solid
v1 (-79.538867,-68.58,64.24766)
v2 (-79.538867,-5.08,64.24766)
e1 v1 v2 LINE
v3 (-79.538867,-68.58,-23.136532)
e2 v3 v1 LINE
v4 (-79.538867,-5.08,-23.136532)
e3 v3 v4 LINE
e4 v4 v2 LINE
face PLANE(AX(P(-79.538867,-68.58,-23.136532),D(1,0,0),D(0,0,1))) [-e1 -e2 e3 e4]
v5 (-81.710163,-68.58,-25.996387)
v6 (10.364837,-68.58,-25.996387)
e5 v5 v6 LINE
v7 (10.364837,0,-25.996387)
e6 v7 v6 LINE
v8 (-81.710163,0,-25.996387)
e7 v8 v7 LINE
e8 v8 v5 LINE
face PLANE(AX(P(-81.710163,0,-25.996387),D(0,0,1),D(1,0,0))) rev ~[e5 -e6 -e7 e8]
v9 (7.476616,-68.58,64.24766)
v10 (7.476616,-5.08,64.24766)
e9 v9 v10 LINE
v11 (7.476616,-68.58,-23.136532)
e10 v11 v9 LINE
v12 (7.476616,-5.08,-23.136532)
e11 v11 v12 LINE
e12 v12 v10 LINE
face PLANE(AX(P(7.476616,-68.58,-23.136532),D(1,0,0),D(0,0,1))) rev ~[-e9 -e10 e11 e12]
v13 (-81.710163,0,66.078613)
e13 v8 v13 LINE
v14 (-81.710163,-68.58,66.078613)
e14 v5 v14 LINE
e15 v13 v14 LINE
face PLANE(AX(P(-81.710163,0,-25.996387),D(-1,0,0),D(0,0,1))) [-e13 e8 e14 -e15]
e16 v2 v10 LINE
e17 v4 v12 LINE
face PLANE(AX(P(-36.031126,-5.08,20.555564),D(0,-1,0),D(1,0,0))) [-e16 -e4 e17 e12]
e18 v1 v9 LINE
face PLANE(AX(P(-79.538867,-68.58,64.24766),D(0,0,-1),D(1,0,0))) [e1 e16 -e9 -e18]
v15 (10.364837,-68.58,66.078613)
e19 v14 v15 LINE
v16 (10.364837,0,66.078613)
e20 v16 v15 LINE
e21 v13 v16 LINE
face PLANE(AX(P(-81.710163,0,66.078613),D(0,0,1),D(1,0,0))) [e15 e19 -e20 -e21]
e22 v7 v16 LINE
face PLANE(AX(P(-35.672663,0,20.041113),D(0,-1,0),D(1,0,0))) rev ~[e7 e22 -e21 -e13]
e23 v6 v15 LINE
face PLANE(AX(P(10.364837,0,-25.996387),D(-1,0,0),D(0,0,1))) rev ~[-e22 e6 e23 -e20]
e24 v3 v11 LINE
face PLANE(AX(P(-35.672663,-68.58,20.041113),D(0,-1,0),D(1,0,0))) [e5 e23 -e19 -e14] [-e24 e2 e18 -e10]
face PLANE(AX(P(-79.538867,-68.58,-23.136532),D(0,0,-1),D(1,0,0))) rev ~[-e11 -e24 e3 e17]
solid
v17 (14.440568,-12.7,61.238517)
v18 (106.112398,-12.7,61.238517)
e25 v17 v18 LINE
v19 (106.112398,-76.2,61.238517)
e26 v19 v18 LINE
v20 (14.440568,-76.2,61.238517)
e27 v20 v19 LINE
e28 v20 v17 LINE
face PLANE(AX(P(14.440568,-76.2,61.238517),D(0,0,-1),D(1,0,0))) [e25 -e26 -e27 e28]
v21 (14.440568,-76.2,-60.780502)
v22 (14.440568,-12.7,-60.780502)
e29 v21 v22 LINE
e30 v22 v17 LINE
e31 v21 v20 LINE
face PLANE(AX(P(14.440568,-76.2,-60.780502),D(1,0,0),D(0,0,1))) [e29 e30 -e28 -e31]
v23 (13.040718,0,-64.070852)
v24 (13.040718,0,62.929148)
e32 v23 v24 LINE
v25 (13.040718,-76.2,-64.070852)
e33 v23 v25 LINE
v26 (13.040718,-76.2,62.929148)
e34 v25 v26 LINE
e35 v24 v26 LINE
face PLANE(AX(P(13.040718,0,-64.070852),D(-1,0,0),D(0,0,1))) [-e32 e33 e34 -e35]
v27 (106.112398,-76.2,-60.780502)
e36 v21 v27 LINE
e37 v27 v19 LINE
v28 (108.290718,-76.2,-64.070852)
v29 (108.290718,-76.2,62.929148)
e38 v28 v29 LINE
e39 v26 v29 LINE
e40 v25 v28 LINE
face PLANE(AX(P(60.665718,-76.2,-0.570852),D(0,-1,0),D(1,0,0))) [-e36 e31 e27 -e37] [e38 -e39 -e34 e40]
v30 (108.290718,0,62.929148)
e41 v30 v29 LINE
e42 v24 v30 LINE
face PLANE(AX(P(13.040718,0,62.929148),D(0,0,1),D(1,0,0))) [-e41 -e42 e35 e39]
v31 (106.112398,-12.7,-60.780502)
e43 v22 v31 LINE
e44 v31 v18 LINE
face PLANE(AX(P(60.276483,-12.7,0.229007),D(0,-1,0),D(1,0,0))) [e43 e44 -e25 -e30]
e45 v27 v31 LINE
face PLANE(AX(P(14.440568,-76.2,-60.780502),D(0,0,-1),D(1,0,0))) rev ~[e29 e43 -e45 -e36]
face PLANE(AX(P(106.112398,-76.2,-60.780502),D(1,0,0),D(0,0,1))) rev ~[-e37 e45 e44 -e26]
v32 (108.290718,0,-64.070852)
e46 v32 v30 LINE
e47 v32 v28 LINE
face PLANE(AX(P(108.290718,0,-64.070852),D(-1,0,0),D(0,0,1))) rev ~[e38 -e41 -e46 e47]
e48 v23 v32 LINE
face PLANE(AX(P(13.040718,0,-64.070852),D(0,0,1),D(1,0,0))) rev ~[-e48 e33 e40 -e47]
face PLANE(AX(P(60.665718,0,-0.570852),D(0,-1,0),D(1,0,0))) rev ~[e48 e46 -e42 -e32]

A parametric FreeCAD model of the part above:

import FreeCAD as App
import Part
import Sketcher
from FreeCAD import Vector
Q = App.Units.Quantity

doc = App.newDocument("Part")
body = doc.addObject("PartDesign::Body", "Body")

# Sketch on XZ plane
sketch1 = body.newObject("Sketcher::SketchObject", "Sketch")
sketch1.AttachmentSupport = (doc.getObject("XZ_Plane"), [""])
sketch1.MapMode = "FlatFace"
sketch1.addGeometry(Part.LineSegment(Vector(-82, 66, 0), Vector(-82, -26, 0)), False)
sketch1.addGeometry(Part.LineSegment(Vector(-82, -26, 0), Vector(10, -26, 0)), False)
sketch1.addGeometry(Part.LineSegment(Vector(10, -26, 0), Vector(10, 66, 0)), False)
sketch1.addGeometry(Part.LineSegment(Vector(10, 66, 0), Vector(-82, 66, 0)), False)
sketch1.addConstraint(Sketcher.Constraint("Coincident", 0, 2, 1, 1))
sketch1.addConstraint(Sketcher.Constraint("Coincident", 1, 2, 2, 1))
sketch1.addConstraint(Sketcher.Constraint("Coincident", 2, 2, 3, 1))
sketch1.addConstraint(Sketcher.Constraint("Coincident", 3, 2, 0, 1))
sketch1.addConstraint(Sketcher.Constraint("Vertical", 0))
sketch1.addConstraint(Sketcher.Constraint("Horizontal", 1))
sketch1.addConstraint(Sketcher.Constraint("Vertical", 2))
sketch1.addConstraint(Sketcher.Constraint("Horizontal", 3))
sketch1.addConstraint(Sketcher.Constraint("Equal", 3, 0))
sketch1.addConstraint(Sketcher.Constraint("DistanceX", 1, 1, 1, 2, Q("3.625 in")))
sketch1.addConstraint(Sketcher.Constraint("DistanceX", 0, 2, -1, 1, 81.710163))
sketch1.addConstraint(Sketcher.Constraint("DistanceY", 0, 2, -1, 1, 25.996387))
pad1 = body.newObject("PartDesign::Pad", "Pad")
pad1.Profile = sketch1
pad1.Length = Q("2.7 in")

# Sketch on XZ plane
sketch2 = body.newObject("Sketcher::SketchObject", "Sketch001")
sketch2.AttachmentSupport = (doc.getObject("XZ_Plane"), [""])
sketch2.MapMode = "FlatFace"
sketch2.AttachmentOffset = App.Placement(Vector(0, 0, 2.7 * 25.4), App.Rotation())
sketch2.addGeometry(Part.LineSegment(Vector(-80, 64, 0), Vector(-80, -23, 0)), False)
sketch2.addGeometry(Part.LineSegment(Vector(-80, -23, 0), Vector(7, -23, 0)), False)
sketch2.addGeometry(Part.LineSegment(Vector(7, -23, 0), Vector(7, 64, 0)), False)
sketch2.addGeometry(Part.LineSegment(Vector(7, 64, 0), Vector(-80, 64, 0)), False)
sketch2.addConstraint(Sketcher.Constraint("Coincident", 0, 2, 1, 1))
sketch2.addConstraint(Sketcher.Constraint("Coincident", 1, 2, 2, 1))
sketch2.addConstraint(Sketcher.Constraint("Coincident", 2, 2, 3, 1))
sketch2.addConstraint(Sketcher.Constraint("Coincident", 3, 2, 0, 1))
sketch2.addConstraint(Sketcher.Constraint("Vertical", 0))
sketch2.addConstraint(Sketcher.Constraint("Horizontal", 1))
sketch2.addConstraint(Sketcher.Constraint("Vertical", 2))
sketch2.addConstraint(Sketcher.Constraint("Horizontal", 3))
sketch2.addConstraint(Sketcher.Constraint("DistanceY", 0, 2, 0, 1, 87.384192))
sketch2.addConstraint(Sketcher.Constraint("DistanceX", 1, 1, 1, 2, 87.015483))
sketch2.addConstraint(Sketcher.Constraint("DistanceY", 0, 2, -1, 1, 23.136532))
sketch2.addConstraint(Sketcher.Constraint("DistanceX", 0, 2, -1, 1, 79.538867))
pocket1 = body.newObject("PartDesign::Pocket", "Pocket")
pocket1.Profile = sketch2
pocket1.Length = Q("2.5 in")
body2 = doc.addObject("PartDesign::Body", "Body001")

# Sketch on XZ plane
sketch3 = body2.newObject("Sketcher::SketchObject", "Sketch002")
sketch3.AttachmentSupport = (doc.getObject("XZ_Plane001"), [""])
sketch3.MapMode = "FlatFace"
sketch3.addGeometry(Part.LineSegment(Vector(13, 63, 0), Vector(13, -64, 0)), False)
sketch3.addGeometry(Part.LineSegment(Vector(13, -64, 0), Vector(108, -64, 0)), False)
sketch3.addGeometry(Part.LineSegment(Vector(108, -64, 0), Vector(108, 63, 0)), False)
sketch3.addGeometry(Part.LineSegment(Vector(108, 63, 0), Vector(13, 63, 0)), False)
sketch3.addConstraint(Sketcher.Constraint("Coincident", 0, 2, 1, 1))
sketch3.addConstraint(Sketcher.Constraint("Coincident", 1, 2, 2, 1))
sketch3.addConstraint(Sketcher.Constraint("Coincident", 2, 2, 3, 1))
sketch3.addConstraint(Sketcher.Constraint("Coincident", 3, 2, 0, 1))
sketch3.addConstraint(Sketcher.Constraint("Vertical", 0))
sketch3.addConstraint(Sketcher.Constraint("Horizontal", 1))
sketch3.addConstraint(Sketcher.Constraint("Vertical", 2))
sketch3.addConstraint(Sketcher.Constraint("Horizontal", 3))
sketch3.addConstraint(Sketcher.Constraint("DistanceY", 0, 2, 0, 1, Q("5 in")))
sketch3.addConstraint(Sketcher.Constraint("DistanceX", 1, 1, 1, 2, Q("3.75 in")))
sketch3.addConstraint(Sketcher.Constraint("DistanceX", -1, 1, 1, 2, 108.290718))
sketch3.addConstraint(Sketcher.Constraint("DistanceY", 0, 2, -1, 1, 64.070852))
pad2 = body2.newObject("PartDesign::Pad", "Pad001")
pad2.Profile = sketch3
pad2.Length = Q("3 in")

# Sketch on XZ plane
sketch4 = body2.newObject("Sketcher::SketchObject", "Sketch003")
sketch4.AttachmentSupport = (doc.getObject("XZ_Plane001"), [""])
sketch4.MapMode = "FlatFace"
sketch4.AttachmentOffset = App.Placement(Vector(0, 0, 3 * 25.4), App.Rotation())
sketch4.addGeometry(Part.LineSegment(Vector(14, 61, 0), Vector(14, -61, 0)), False)
sketch4.addGeometry(Part.LineSegment(Vector(14, -61, 0), Vector(106, -61, 0)), False)
sketch4.addGeometry(Part.LineSegment(Vector(106, -61, 0), Vector(106, 61, 0)), False)
sketch4.addGeometry(Part.LineSegment(Vector(106, 61, 0), Vector(14, 61, 0)), False)
sketch4.addConstraint(Sketcher.Constraint("Coincident", 0, 2, 1, 1))
sketch4.addConstraint(Sketcher.Constraint("Coincident", 1, 2, 2, 1))
sketch4.addConstraint(Sketcher.Constraint("Coincident", 2, 2, 3, 1))
sketch4.addConstraint(Sketcher.Constraint("Coincident", 3, 2, 0, 1))
sketch4.addConstraint(Sketcher.Constraint("Vertical", 0))
sketch4.addConstraint(Sketcher.Constraint("Horizontal", 1))
sketch4.addConstraint(Sketcher.Constraint("Vertical", 2))
sketch4.addConstraint(Sketcher.Constraint("Horizontal", 3))
sketch4.addConstraint(Sketcher.Constraint("DistanceX", 1, 1, 1, 2, 91.671831))
sketch4.addConstraint(Sketcher.Constraint("DistanceY", 0, 2, 0, 1, 122.019019))
sketch4.addConstraint(Sketcher.Constraint("DistanceX", -1, 1, 1, 2, 106.112398))
sketch4.addConstraint(Sketcher.Constraint("DistanceY", 0, 2, -1, 1, 60.780502))
pocket2 = body2.newObject("PartDesign::Pocket", "Pocket001")
pocket2.Profile = sketch4
pocket2.Length = Q("2.5 in")

doc.recompute()
